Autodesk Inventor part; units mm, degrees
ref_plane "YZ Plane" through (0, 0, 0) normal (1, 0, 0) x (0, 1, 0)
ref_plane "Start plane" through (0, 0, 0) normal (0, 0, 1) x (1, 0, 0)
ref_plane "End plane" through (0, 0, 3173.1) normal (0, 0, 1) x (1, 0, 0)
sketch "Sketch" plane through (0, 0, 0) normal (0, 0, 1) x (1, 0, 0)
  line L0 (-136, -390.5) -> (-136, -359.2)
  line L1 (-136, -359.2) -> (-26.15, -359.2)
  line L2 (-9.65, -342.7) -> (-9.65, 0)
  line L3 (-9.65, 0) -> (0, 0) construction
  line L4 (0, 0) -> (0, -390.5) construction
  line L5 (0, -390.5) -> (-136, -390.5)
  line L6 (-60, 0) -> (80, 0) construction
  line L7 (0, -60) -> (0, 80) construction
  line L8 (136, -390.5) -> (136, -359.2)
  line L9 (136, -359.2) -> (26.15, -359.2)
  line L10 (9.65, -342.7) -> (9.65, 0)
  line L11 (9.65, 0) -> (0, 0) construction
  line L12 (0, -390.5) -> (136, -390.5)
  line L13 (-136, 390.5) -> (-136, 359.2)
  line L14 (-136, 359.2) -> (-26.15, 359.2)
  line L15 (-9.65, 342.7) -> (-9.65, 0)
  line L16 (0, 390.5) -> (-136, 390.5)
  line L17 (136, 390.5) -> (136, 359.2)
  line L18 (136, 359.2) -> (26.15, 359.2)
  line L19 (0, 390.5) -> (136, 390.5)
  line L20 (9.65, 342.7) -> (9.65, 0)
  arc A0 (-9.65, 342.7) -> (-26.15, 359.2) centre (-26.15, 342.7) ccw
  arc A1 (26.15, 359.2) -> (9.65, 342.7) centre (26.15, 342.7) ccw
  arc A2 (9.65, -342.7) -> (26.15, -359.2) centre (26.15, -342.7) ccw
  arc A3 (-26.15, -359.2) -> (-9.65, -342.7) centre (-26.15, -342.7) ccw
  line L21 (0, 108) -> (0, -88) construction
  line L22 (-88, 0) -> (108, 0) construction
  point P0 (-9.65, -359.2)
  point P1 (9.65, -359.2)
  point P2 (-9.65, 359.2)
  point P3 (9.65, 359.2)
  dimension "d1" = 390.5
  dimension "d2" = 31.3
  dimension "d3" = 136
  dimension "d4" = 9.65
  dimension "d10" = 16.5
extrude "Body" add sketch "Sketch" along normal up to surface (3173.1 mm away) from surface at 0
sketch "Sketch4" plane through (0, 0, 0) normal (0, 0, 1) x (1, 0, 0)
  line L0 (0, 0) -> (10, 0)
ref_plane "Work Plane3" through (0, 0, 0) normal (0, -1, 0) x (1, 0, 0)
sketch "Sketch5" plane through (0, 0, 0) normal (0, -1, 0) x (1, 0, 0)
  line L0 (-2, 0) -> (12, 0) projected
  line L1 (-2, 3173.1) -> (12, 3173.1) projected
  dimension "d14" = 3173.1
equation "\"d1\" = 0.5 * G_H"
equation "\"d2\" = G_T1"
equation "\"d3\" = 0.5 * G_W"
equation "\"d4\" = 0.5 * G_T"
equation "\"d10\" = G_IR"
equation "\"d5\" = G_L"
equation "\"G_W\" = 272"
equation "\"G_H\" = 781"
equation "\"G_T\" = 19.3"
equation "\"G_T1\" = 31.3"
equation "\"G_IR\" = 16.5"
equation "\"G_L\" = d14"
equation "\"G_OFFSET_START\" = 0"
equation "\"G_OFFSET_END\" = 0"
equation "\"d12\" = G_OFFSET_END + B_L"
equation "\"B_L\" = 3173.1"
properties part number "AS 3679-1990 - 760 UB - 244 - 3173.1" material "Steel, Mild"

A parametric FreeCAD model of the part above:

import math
import FreeCAD as App
import Part
import Sketcher
from FreeCAD import Vector

doc = App.newDocument("Part")
body = doc.addObject("PartDesign::Body", "Body")

# Sketch on XY plane
sketch1 = body.newObject("Sketcher::SketchObject", "Sketch")
sketch1.AttachmentSupport = (doc.getObject("XY_Plane"), [""])
sketch1.MapMode = "FlatFace"
sketch1.addGeometry([
    Part.LineSegment(Vector(-136, -359, 0), Vector(-136, -390, 0)),  # 0
    Part.LineSegment(Vector(-136, -390, 0), Vector(136, -390, 0)),  # 1
    Part.LineSegment(Vector(136, -390, 0), Vector(136, -359, 0)),  # 2
    Part.LineSegment(Vector(136, -359, 0), Vector(26, -359, 0)),  # 3
    Part.ArcOfCircle(Part.Circle(Vector(26, -343, 0), Vector(0, 0, 1), 16), math.radians(180), math.radians(270)),  # 4
    Part.LineSegment(Vector(10, -343, 0), Vector(10, 343, 0)),  # 5
    Part.ArcOfCircle(Part.Circle(Vector(26, 343, 0), Vector(0, 0, 1), 16), math.radians(90), math.radians(180)),  # 6
    Part.LineSegment(Vector(26, 359, 0), Vector(136, 359, 0)),  # 7
    Part.LineSegment(Vector(136, 359, 0), Vector(136, 390, 0)),  # 8
    Part.LineSegment(Vector(136, 390, 0), Vector(-136, 390, 0)),  # 9
    Part.LineSegment(Vector(-136, 390, 0), Vector(-136, 359, 0)),  # 10
    Part.LineSegment(Vector(-136, 359, 0), Vector(-26, 359, 0)),  # 11
    Part.ArcOfCircle(Part.Circle(Vector(-26, 343, 0), Vector(0, 0, 1), 16), math.radians(0), math.radians(90)),  # 12
    Part.LineSegment(Vector(-10, 343, 0), Vector(-10, -343, 0)),  # 13
    Part.ArcOfCircle(Part.Circle(Vector(-26, -343, 0), Vector(0, 0, 1), 16), math.radians(-90), math.radians(0)),  # 14
    Part.LineSegment(Vector(-26, -359, 0), Vector(-136, -359, 0)),  # 15
], False)
sketch1.addConstraint([
    Sketcher.Constraint("Coincident", 0, 2, 1, 1),
    Sketcher.Constraint("Coincident", 1, 2, 2, 1),
    Sketcher.Constraint("Coincident", 2, 2, 3, 1),
    Sketcher.Constraint("Tangent", 3, 2, 4, 2),
    Sketcher.Constraint("Tangent", 4, 1, 5, 1),
    Sketcher.Constraint("Tangent", 5, 2, 6, 2),
    Sketcher.Constraint("Tangent", 6, 1, 7, 1),
    Sketcher.Constraint("Coincident", 7, 2, 8, 1),
    Sketcher.Constraint("Coincident", 8, 2, 9, 1),
    Sketcher.Constraint("Coincident", 9, 2, 10, 1),
    Sketcher.Constraint("Coincident", 10, 2, 11, 1),
    Sketcher.Constraint("Tangent", 11, 2, 12, 2),
    Sketcher.Constraint("Tangent", 12, 1, 13, 1),
    Sketcher.Constraint("Tangent", 13, 2, 14, 2),
    Sketcher.Constraint("Tangent", 14, 1, 15, 1),
    Sketcher.Constraint("Coincident", 15, 2, 0, 1),
    Sketcher.Constraint("Vertical", 0),
    Sketcher.Constraint("Horizontal", 1),
    Sketcher.Constraint("Vertical", 2),
    Sketcher.Constraint("Horizontal", 3),
    Sketcher.Constraint("Vertical", 5),
    Sketcher.Constraint("Horizontal", 7),
    Sketcher.Constraint("Vertical", 8),
    Sketcher.Constraint("Horizontal", 9),
    Sketcher.Constraint("Vertical", 10),
    Sketcher.Constraint("Horizontal", 11),
    Sketcher.Constraint("Vertical", 13),
    Sketcher.Constraint("Horizontal", 15),
    Sketcher.Constraint("Equal", 4, 6),
    Sketcher.Constraint("Equal", 6, 12),
    Sketcher.Constraint("Equal", 12, 14),
    Sketcher.Constraint("Symmetric", 4, 3, 12, 3, -1, 1),
    Sketcher.Constraint("Symmetric", 0, 2, 8, 2, -1, 1),
    Sketcher.Constraint("Symmetric", 7, 2, 10, 2, -2),
    Sketcher.Constraint("Symmetric", 2, 2, 15, 2, -2),
    Sketcher.Constraint("Radius", 4, 16.5),
    Sketcher.Constraint("DistanceY", 0, 2, 0, 1, 31.3),
    Sketcher.Constraint("DistanceX", 0, 2, -1, 1, 136.0),
    Sketcher.Constraint("DistanceY", 0, 2, -1, 1, 390.5),
    Sketcher.Constraint("DistanceX", -1, 1, 4, 1, 9.65),
])
pad1 = body.newObject("PartDesign::Pad", "Pad")
pad1.Profile = sketch1
pad1.Length = 3173.1

doc.recompute()
